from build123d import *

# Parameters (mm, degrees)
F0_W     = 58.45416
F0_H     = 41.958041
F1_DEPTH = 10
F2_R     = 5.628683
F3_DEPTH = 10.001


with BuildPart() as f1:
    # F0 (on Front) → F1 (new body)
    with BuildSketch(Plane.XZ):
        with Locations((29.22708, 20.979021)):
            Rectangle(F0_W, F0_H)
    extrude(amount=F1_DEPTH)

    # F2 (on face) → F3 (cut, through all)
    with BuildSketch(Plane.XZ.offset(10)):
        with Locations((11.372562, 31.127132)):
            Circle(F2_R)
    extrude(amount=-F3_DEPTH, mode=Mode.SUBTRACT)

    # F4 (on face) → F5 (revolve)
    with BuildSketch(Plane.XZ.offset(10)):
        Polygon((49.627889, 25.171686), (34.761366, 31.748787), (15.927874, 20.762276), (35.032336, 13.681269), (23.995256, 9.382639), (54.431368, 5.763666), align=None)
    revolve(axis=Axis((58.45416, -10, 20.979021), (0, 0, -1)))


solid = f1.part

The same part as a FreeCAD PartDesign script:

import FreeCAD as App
import Part
import Sketcher
from FreeCAD import Vector

doc = App.newDocument("Part")
params = doc.addObject("Spreadsheet::Sheet", "Params")
for row, (alias, value) in enumerate([
    ("pad1_length", "10 mm"),
    ("revolution_angle", "360 deg"),
], start=1):
    params.set(f"A{row}", alias)
    params.set(f"B{row}", "=" + value)
    params.setAlias(f"B{row}", alias)

body = doc.addObject("PartDesign::Body", "Body")

# Sketch on XZ plane
sketch1 = body.newObject("Sketcher::SketchObject", "Sketch")
sketch1.AttachmentSupport = (doc.getObject("XZ_Plane"), [""])
sketch1.MapMode = "FlatFace"
sketch1.addGeometry([
    Part.LineSegment(Vector(0, 42, 0), Vector(0, 0, 0)),
    Part.LineSegment(Vector(0, 0, 0), Vector(58, 0, 0)),
    Part.LineSegment(Vector(58, 0, 0), Vector(58, 42, 0)),
    Part.LineSegment(Vector(58, 42, 0), Vector(0, 42, 0)),
], False)
sketch1.addConstraint([
    Sketcher.Constraint("Coincident", 0, 2, 1, 1),
    Sketcher.Constraint("Coincident", 1, 2, 2, 1),
    Sketcher.Constraint("Coincident", 2, 2, 3, 1),
    Sketcher.Constraint("Coincident", 3, 2, 0, 1),
    Sketcher.Constraint("Vertical", 0),
    Sketcher.Constraint("Horizontal", 1),
    Sketcher.Constraint("Vertical", 2),
    Sketcher.Constraint("Horizontal", 3),
    Sketcher.Constraint("Coincident", 0, 2, -1, 1),
    Sketcher.Constraint("DistanceX", 1, 1, 1, 2, 58.45416),
    Sketcher.Constraint("DistanceY", 0, 2, 0, 1, 41.958041),
])
pad1 = body.newObject("PartDesign::Pad", "Pad")
pad1.Profile = sketch1
pad1.setExpression("Length", "Params.pad1_length")

# Sketch on XZ plane
sketch2 = body.newObject("Sketcher::SketchObject", "Sketch001")
sketch2.AttachmentSupport = (doc.getObject("XZ_Plane"), [""])
sketch2.MapMode = "FlatFace"
sketch2.AttachmentOffset = App.Placement(Vector(0, 0, 10), App.Rotation())
sketch2.addGeometry(Part.Circle(Vector(11, 31, 0), Vector(0, 0, 1), 6), False)
sketch2.addConstraint([
    Sketcher.Constraint("Diameter", 0, 11.257366),
    Sketcher.Constraint("DistanceY", -1, 1, 0, 3, 31.127132),
    Sketcher.Constraint("DistanceX", -1, 1, 0, 3, 11.372562),
])
pocket1 = body.newObject("PartDesign::Pocket", "Pocket")
pocket1.Profile = sketch2
pocket1.Type = "ThroughAll"

# Sketch on XZ plane
sketch3 = body.newObject("Sketcher::SketchObject", "Sketch002")
sketch3.AttachmentSupport = (doc.getObject("XZ_Plane"), [""])
sketch3.MapMode = "FlatFace"
sketch3.AttachmentOffset = App.Placement(Vector(0, 0, 10), App.Rotation())
sketch3.addGeometry([
    Part.LineSegment(Vector(50, 25, 0), Vector(35, 32, 0)),  # 0
    Part.LineSegment(Vector(35, 32, 0), Vector(16, 21, 0)),  # 1
    Part.LineSegment(Vector(16, 21, 0), Vector(35, 14, 0)),  # 2
    Part.LineSegment(Vector(35, 14, 0), Vector(24, 9, 0)),  # 3
    Part.LineSegment(Vector(24, 9, 0), Vector(54, 6, 0)),  # 4
    Part.LineSegment(Vector(54, 6, 0), Vector(50, 25, 0)),  # 5
], False)
sketch3.addGeometry(Part.LineSegment(Vector(58, 32, 0), Vector(58, 6, 0)), True)  # axis
sketch3.addConstraint([
    Sketcher.Constraint("Coincident", 0, 2, 1, 1),
    Sketcher.Constraint("Coincident", 1, 2, 2, 1),
    Sketcher.Constraint("Coincident", 2, 2, 3, 1),
    Sketcher.Constraint("Coincident", 3, 2, 4, 1),
    Sketcher.Constraint("Coincident", 4, 2, 5, 1),
    Sketcher.Constraint("Coincident", 5, 2, 0, 1),
    Sketcher.Constraint("Vertical", 6),
    Sketcher.Constraint("Horizontal", 0, 2, 6, 1),
    Sketcher.Constraint("Horizontal", 4, 2, 6, 2),
    Sketcher.Constraint("DistanceX", 0, 2, 4, 2, 19.670002),
    Sketcher.Constraint("DistanceY", 6, 2, 6, 1, 25.985121),
    Sketcher.Constraint("DistanceY", 5, 2, 0, 2, 6.577101),
    Sketcher.Constraint("Distance", 2, 20.374522),
    Sketcher.Constraint("Distance", 4, 30.650512),
    Sketcher.Constraint("DistanceY", -1, 1, 2, 2, 13.681269),
    Sketcher.Constraint("DistanceY", -1, 1, 3, 2, 9.382639),
    Sketcher.Constraint("DistanceX", -1, 1, 5, 2, 49.627889),
    Sketcher.Constraint("DistanceX", -1, 1, 6, 1, 58.45416),
    Sketcher.Constraint("DistanceY", 1, 2, 0, 2, 10.986511),
    Sketcher.Constraint("DistanceX", 0, 2, 2, 2, 0.27097),
    Sketcher.Constraint("DistanceY", 2, 2, 0, 2, 18.067518),
    Sketcher.Constraint("DistanceX", 5, 2, 4, 2, 4.803479),
])
revolution = body.newObject("PartDesign::Revolution", "Revolution")
revolution.Profile = sketch3
revolution.ReferenceAxis = (sketch3, ["Axis0"])
revolution.setExpression("Angle", "Params.revolution_angle")

doc.recompute()
